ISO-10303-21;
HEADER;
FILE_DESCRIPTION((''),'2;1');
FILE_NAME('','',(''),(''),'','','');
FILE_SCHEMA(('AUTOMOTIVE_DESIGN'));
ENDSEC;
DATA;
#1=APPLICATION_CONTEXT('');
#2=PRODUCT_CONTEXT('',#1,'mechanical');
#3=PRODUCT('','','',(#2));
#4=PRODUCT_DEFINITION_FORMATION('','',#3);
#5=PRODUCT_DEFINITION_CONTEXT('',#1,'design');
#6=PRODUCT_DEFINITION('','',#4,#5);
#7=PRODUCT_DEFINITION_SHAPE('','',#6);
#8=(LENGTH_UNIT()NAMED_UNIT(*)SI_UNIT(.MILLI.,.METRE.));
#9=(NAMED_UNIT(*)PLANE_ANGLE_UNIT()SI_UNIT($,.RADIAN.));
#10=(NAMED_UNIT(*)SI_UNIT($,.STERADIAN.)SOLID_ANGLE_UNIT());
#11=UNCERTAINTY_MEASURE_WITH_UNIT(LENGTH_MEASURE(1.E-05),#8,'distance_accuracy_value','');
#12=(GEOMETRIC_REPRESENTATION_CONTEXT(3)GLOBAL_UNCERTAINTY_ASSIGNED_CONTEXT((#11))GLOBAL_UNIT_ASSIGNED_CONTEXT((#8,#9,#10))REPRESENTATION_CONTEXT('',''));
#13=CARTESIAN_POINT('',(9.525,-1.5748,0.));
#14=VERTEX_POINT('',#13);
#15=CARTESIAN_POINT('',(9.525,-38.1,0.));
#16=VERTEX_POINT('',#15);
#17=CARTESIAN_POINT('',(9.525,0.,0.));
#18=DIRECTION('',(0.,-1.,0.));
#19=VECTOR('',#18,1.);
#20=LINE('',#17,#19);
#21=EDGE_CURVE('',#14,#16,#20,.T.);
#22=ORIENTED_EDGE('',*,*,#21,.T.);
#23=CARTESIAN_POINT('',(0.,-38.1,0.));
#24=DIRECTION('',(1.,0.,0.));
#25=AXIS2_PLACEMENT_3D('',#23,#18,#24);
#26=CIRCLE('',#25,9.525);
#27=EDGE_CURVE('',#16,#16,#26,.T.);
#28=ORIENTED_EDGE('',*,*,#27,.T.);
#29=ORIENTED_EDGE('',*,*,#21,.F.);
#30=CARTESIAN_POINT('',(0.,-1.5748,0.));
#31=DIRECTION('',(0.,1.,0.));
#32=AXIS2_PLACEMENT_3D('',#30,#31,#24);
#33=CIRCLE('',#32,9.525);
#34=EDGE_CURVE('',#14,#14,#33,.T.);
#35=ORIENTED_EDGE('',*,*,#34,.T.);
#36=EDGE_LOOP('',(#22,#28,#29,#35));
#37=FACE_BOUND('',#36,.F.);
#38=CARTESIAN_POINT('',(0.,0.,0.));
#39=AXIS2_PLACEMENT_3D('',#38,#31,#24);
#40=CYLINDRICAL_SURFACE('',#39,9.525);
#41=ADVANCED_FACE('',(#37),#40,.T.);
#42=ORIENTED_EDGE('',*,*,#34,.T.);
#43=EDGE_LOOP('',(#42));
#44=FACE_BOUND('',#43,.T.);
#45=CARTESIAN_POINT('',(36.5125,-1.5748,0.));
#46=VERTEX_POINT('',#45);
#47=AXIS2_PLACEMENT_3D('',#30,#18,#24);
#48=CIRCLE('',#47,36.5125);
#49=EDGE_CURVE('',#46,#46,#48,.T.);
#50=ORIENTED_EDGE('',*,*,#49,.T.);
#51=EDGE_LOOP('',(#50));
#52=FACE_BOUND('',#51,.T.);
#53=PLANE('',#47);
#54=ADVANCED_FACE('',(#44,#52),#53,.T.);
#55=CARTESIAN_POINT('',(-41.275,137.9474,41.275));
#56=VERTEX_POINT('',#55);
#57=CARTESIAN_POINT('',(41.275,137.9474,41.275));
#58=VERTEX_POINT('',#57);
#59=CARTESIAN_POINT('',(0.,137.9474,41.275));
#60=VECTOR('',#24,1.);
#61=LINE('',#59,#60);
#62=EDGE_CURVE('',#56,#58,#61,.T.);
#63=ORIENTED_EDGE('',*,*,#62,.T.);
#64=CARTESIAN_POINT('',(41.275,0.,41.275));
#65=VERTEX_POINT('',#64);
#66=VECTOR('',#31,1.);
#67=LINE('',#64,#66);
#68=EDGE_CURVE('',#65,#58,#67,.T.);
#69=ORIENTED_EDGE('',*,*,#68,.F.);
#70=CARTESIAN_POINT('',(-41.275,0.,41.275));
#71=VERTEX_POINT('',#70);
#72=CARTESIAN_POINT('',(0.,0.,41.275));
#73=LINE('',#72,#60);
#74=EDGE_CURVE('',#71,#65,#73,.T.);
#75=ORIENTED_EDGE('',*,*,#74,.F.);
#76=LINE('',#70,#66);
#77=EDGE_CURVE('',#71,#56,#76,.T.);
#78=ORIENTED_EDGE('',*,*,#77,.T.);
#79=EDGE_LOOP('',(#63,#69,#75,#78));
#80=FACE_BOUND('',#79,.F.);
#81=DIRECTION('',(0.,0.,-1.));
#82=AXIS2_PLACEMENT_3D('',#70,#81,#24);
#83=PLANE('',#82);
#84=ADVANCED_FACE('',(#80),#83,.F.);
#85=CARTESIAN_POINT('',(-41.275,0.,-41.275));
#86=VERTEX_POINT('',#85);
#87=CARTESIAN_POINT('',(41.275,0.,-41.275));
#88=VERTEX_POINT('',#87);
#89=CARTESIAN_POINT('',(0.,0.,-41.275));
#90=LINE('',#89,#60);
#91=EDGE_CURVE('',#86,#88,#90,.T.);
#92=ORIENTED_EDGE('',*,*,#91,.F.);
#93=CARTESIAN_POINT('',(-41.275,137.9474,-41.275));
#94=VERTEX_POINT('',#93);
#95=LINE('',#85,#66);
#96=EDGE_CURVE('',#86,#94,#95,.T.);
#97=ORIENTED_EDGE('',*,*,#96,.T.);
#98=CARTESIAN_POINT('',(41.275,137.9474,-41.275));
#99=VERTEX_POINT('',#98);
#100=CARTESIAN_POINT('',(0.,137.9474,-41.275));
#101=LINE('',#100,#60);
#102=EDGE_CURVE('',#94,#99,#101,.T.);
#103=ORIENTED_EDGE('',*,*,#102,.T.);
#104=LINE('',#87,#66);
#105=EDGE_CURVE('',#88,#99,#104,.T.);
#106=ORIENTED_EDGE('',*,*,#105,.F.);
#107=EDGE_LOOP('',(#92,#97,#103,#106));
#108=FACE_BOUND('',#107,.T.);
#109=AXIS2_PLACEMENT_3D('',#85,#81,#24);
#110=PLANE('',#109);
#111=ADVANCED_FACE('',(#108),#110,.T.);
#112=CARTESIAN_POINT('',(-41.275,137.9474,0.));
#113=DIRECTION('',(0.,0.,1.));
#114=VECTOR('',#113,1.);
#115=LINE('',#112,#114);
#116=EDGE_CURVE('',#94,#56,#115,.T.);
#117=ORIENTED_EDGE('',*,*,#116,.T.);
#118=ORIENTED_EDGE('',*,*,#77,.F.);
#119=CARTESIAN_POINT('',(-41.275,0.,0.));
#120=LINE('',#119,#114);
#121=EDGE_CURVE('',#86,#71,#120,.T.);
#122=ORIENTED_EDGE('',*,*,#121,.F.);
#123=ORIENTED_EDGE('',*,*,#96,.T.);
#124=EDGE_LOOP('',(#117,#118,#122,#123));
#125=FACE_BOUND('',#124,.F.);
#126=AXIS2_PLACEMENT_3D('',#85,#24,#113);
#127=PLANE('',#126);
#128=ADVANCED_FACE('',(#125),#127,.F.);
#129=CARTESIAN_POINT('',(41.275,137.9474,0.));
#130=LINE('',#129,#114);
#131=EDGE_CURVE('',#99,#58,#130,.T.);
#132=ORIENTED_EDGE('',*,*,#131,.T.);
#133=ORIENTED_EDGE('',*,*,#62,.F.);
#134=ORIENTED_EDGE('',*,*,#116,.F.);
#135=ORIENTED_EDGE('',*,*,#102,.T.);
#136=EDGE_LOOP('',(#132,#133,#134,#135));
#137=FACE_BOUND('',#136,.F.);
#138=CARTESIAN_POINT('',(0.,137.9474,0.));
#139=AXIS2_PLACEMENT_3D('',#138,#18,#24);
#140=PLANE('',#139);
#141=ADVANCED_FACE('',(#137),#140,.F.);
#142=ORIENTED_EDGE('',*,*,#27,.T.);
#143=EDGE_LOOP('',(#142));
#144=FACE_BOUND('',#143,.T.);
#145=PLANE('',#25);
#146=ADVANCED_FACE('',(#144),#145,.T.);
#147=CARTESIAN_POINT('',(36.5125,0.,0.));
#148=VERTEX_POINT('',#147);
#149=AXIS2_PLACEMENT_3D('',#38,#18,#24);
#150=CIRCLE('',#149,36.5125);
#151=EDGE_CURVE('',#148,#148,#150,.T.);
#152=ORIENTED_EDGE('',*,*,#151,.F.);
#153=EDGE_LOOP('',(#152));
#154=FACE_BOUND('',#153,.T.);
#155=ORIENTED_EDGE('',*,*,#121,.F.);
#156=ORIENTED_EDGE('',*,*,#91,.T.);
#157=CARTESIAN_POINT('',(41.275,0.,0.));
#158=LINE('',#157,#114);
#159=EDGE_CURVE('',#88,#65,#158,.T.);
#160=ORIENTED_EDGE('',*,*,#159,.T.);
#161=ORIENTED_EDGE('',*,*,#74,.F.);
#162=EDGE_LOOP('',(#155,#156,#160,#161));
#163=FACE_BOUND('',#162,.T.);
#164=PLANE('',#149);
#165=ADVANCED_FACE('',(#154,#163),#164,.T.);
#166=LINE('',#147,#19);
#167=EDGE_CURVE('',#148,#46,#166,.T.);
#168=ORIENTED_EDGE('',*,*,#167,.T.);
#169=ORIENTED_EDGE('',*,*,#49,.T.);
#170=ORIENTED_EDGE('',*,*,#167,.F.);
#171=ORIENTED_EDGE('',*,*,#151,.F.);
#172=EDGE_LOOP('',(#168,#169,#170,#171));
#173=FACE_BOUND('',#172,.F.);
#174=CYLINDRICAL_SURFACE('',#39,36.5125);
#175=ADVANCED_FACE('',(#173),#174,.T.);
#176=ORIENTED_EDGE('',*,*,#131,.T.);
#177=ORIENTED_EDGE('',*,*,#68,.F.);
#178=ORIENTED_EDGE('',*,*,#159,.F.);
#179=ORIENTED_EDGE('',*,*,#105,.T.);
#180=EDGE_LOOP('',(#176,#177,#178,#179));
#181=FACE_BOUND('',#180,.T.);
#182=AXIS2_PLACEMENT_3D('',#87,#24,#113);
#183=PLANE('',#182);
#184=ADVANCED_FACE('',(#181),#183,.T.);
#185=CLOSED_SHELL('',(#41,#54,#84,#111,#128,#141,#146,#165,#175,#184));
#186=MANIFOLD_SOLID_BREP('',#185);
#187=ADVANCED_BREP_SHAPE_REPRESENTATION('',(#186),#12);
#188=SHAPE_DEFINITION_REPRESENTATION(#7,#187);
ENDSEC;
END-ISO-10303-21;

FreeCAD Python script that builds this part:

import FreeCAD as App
import Part
import Sketcher

V = App.Vector
Q = App.Units.Quantity

doc = App.newDocument("Part")
body = doc.addObject("PartDesign::Body", "Body")

# Sketch on XZ plane
sketch1 = body.newObject("Sketcher::SketchObject", "Sketch")
sketch1.AttachmentSupport = (doc.getObject("XZ_Plane"), [""])
sketch1.MapMode = "FlatFace"
sketch1.addGeometry(Part.LineSegment(V(-41, 41, 0), V(-41, -41, 0)), False)
sketch1.addGeometry(Part.LineSegment(V(-41, -41, 0), V(41, -41, 0)), False)
sketch1.addGeometry(Part.LineSegment(V(41, -41, 0), V(41, 41, 0)), False)
sketch1.addGeometry(Part.LineSegment(V(41, 41, 0), V(-41, 41, 0)), False)
sketch1.addConstraint(Sketcher.Constraint("Coincident", 0, 2, 1, 1))
sketch1.addConstraint(Sketcher.Constraint("Coincident", 1, 2, 2, 1))
sketch1.addConstraint(Sketcher.Constraint("Coincident", 2, 2, 3, 1))
sketch1.addConstraint(Sketcher.Constraint("Coincident", 3, 2, 0, 1))
sketch1.addConstraint(Sketcher.Constraint("Vertical", 0))
sketch1.addConstraint(Sketcher.Constraint("Horizontal", 1))
sketch1.addConstraint(Sketcher.Constraint("Vertical", 2))
sketch1.addConstraint(Sketcher.Constraint("Horizontal", 3))
sketch1.addConstraint(Sketcher.Constraint("Symmetric", 0, 2, 2, 2, -1, 1))
sketch1.addConstraint(Sketcher.Constraint("Equal", 3, 0))
sketch1.addConstraint(Sketcher.Constraint("DistanceX", 1, 1, 1, 2, Q("3.25 in")))
pad1 = body.newObject("PartDesign::Pad", "Pad")
pad1.Profile = sketch1
pad1.Length = Q("5.431 in")
pad1.Reversed = True

# Sketch on XZ plane
sketch2 = body.newObject("Sketcher::SketchObject", "Sketch001")
sketch2.AttachmentSupport = (doc.getObject("XZ_Plane"), [""])
sketch2.MapMode = "FlatFace"
sketch2.addGeometry(Part.Circle(V(0, 0, 0), V(0, 0, 1), 37), False)
sketch2.addConstraint(Sketcher.Constraint("Coincident", 0, 3, -1, 1))
sketch2.addConstraint(Sketcher.Constraint("Diameter", 0, Q("2.875 in")))
pad2 = body.newObject("PartDesign::Pad", "Pad001")
pad2.Profile = sketch2
pad2.Length = Q("0.062 in")

# Sketch on XZ plane
sketch3 = body.newObject("Sketcher::SketchObject", "Sketch002")
sketch3.AttachmentSupport = (doc.getObject("XZ_Plane"), [""])
sketch3.MapMode = "FlatFace"
sketch3.addGeometry(Part.Circle(V(0, 0, 0), V(0, 0, 1), 10), False)
sketch3.addConstraint(Sketcher.Constraint("Coincident", 0, 3, -1, 1))
sketch3.addConstraint(Sketcher.Constraint("Diameter", 0, Q("0.75 in")))
pad3 = body.newObject("PartDesign::Pad", "Pad002")
pad3.Profile = sketch3
pad3.Length = Q("1.5 in")

doc.recompute()
